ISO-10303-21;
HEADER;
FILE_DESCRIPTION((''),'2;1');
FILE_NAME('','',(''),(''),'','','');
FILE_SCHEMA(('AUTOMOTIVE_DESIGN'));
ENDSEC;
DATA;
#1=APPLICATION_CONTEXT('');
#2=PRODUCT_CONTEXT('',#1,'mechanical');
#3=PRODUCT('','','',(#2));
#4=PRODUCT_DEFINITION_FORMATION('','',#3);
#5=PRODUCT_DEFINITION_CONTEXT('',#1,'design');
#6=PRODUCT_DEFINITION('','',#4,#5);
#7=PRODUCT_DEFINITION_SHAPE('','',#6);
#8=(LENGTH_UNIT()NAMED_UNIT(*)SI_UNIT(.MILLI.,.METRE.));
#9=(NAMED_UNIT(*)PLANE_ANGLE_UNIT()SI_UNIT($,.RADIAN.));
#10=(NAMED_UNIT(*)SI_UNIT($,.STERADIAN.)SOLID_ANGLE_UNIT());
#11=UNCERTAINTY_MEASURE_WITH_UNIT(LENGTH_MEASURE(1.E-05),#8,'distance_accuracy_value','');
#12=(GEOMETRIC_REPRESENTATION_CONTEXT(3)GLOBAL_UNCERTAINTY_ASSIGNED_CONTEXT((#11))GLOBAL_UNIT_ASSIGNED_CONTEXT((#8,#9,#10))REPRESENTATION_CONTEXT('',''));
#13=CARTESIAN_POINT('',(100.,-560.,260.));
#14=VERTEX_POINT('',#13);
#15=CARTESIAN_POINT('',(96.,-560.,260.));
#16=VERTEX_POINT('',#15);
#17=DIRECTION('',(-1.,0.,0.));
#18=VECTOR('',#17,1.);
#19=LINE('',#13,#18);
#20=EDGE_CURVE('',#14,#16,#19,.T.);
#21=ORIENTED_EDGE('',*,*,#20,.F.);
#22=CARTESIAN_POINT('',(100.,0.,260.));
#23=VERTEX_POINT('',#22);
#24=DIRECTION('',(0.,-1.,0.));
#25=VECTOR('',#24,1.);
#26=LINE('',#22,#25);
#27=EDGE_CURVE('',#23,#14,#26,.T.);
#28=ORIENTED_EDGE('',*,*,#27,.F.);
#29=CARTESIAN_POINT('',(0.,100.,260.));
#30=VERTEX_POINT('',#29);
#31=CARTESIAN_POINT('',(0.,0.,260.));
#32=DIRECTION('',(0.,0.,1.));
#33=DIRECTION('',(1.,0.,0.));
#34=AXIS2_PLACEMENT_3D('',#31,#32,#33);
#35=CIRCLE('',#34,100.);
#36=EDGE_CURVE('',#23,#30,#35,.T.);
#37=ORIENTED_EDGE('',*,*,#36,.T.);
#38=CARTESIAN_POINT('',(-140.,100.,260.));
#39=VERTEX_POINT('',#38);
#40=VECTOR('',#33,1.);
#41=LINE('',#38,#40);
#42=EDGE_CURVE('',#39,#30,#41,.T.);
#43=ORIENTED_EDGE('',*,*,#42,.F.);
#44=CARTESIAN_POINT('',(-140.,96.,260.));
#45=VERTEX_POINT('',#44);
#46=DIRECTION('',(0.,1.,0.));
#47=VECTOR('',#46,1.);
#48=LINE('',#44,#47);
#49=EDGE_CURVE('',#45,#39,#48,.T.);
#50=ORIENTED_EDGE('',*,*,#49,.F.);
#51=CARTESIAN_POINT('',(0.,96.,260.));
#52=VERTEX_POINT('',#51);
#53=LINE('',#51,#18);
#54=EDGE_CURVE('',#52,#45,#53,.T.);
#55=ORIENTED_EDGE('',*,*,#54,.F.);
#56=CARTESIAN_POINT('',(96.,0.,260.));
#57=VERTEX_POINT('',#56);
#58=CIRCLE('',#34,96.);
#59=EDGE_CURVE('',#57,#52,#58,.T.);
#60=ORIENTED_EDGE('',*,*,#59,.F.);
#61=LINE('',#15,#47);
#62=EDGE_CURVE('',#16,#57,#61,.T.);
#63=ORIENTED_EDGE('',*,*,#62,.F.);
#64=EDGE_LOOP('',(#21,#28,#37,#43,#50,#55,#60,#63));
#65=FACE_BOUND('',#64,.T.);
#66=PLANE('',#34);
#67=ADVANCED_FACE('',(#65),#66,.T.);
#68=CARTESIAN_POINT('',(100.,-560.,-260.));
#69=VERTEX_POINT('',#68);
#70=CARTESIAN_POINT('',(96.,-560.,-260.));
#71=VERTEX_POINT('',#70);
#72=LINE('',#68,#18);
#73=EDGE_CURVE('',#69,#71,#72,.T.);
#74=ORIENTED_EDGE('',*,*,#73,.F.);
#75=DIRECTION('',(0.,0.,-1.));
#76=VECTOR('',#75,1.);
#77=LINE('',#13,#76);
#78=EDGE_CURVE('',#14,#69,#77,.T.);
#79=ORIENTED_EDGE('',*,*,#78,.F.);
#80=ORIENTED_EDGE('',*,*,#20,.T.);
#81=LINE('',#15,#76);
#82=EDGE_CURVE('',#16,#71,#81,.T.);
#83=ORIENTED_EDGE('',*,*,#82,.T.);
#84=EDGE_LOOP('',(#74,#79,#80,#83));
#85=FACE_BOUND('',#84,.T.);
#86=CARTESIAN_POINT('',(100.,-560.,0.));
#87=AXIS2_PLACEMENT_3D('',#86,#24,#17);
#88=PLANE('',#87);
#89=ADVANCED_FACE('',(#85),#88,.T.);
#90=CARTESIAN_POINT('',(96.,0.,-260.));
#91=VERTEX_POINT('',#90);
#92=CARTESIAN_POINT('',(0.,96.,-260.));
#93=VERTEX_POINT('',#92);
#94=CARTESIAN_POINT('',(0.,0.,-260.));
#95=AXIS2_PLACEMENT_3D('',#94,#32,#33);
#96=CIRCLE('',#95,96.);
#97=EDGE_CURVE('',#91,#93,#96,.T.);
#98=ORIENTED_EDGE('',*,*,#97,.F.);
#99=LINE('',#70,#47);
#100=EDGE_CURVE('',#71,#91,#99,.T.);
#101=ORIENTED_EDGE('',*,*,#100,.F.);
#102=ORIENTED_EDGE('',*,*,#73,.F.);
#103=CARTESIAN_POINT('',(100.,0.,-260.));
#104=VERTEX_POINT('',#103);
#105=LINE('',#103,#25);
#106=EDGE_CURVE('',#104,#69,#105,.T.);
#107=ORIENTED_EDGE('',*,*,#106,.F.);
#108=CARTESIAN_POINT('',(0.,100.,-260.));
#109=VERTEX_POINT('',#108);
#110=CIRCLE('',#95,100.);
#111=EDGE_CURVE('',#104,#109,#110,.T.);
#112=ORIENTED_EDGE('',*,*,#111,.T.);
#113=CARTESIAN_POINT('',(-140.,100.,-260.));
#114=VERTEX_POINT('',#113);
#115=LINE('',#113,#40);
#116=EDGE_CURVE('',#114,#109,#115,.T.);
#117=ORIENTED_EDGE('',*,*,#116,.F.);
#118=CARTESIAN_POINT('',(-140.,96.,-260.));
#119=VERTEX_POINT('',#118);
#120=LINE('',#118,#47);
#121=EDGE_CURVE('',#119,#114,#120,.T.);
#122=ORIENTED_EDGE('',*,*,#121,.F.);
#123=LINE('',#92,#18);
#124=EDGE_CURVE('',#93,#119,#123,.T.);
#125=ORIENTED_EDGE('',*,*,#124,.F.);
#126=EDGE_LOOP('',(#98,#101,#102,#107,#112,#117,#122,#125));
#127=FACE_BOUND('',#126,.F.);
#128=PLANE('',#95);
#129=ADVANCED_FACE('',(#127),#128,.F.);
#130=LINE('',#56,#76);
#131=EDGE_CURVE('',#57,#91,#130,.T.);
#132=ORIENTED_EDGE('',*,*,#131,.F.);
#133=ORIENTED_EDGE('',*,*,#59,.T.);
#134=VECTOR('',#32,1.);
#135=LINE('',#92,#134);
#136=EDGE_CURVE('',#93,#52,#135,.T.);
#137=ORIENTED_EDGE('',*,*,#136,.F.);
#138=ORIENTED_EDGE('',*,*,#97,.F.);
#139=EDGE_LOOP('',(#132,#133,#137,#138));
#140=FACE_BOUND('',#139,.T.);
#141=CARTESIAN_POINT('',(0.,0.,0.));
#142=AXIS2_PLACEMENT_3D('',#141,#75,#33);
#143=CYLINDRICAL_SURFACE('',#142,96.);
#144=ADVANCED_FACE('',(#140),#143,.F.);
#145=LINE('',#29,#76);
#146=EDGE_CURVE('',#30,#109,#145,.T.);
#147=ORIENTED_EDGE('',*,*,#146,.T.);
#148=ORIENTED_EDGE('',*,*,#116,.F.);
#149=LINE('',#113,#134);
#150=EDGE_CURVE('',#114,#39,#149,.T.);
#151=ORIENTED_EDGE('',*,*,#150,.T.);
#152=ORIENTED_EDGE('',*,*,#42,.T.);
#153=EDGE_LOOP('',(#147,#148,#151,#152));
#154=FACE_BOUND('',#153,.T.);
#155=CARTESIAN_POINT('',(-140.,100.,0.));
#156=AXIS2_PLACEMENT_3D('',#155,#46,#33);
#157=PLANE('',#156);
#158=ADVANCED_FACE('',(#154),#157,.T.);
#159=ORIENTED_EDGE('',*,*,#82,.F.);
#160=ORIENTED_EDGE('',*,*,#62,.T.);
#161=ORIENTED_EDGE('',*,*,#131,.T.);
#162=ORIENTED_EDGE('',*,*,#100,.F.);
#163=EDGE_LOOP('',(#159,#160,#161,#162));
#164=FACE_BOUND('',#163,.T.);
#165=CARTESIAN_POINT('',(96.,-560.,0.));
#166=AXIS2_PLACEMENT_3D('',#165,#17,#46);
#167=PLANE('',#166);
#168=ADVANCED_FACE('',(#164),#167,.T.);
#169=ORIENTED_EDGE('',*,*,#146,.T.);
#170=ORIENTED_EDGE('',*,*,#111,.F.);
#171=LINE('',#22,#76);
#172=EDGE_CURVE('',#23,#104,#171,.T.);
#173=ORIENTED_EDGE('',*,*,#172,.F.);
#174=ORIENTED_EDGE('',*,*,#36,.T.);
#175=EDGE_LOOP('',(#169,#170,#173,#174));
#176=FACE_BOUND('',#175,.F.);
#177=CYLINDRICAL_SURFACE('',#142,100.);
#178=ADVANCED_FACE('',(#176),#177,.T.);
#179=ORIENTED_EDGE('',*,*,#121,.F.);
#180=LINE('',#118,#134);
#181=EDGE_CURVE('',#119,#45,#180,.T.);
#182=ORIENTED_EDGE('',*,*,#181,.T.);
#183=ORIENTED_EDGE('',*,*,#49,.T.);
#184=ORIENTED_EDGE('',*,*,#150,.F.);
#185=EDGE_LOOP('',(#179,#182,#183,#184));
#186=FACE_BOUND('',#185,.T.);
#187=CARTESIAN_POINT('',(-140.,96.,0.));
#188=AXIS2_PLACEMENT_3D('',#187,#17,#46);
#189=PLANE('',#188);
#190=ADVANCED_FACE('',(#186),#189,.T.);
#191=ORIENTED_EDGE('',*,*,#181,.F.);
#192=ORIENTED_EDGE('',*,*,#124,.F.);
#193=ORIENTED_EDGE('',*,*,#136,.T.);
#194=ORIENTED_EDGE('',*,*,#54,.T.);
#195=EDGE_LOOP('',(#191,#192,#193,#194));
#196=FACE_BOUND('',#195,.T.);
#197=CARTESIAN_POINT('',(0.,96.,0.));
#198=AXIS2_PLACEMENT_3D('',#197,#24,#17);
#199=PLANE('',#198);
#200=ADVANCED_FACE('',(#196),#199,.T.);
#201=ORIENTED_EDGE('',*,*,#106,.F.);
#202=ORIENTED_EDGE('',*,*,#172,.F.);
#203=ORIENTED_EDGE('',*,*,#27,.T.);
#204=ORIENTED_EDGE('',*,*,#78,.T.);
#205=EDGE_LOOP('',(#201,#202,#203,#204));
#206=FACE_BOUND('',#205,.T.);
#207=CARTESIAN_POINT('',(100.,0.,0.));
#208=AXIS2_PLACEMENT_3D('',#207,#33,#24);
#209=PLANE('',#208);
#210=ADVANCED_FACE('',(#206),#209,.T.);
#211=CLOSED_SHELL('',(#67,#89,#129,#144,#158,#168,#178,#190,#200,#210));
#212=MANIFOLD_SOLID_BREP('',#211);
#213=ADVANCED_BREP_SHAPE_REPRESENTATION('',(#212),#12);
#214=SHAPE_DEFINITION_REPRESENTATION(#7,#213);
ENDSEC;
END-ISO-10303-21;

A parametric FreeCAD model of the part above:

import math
import FreeCAD as App
import Part
import Sketcher
from FreeCAD import Vector
Q = App.Units.Quantity

doc = App.newDocument("Part")
body = doc.addObject("PartDesign::Body", "Body")

# Sketch on XY plane
sketch1 = body.newObject("Sketcher::SketchObject", "Sketch")
sketch1.AttachmentSupport = (doc.getObject("XY_Plane"), [""])
sketch1.MapMode = "FlatFace"
sketch1.addGeometry([
    Part.LineSegment(Vector(0, 100, 0), Vector(-140, 100, 0)),  # 0
    Part.LineSegment(Vector(-140, 100, 0), Vector(-140, 96, 0)),  # 1
    Part.LineSegment(Vector(-140, 96, 0), Vector(0, 96, 0)),  # 2
    Part.ArcOfCircle(Part.Circle(Vector(0, 0, 0), Vector(0, 0, 1), 96), math.radians(0), math.radians(90)),  # 3
    Part.LineSegment(Vector(96, 0, 0), Vector(96, -560, 0)),  # 4
    Part.LineSegment(Vector(96, -560, 0), Vector(100, -560, 0)),  # 5
    Part.LineSegment(Vector(100, -560, 0), Vector(100, 0, 0)),  # 6
    Part.ArcOfCircle(Part.Circle(Vector(0, 0, 0), Vector(0, 0, 1), 100), math.radians(0), math.radians(90)),  # 7
], False)
sketch1.addConstraint([
    Sketcher.Constraint("Coincident", 0, 2, 1, 1),
    Sketcher.Constraint("Coincident", 1, 2, 2, 1),
    Sketcher.Constraint("Tangent", 2, 2, 3, 2),
    Sketcher.Constraint("Tangent", 3, 1, 4, 1),
    Sketcher.Constraint("Coincident", 4, 2, 5, 1),
    Sketcher.Constraint("Coincident", 5, 2, 6, 1),
    Sketcher.Constraint("Tangent", 6, 2, 7, 1),
    Sketcher.Constraint("Tangent", 7, 2, 0, 1),
    Sketcher.Constraint("Horizontal", 0),
    Sketcher.Constraint("Vertical", 1),
    Sketcher.Constraint("Horizontal", 2),
    Sketcher.Constraint("Vertical", 4),
    Sketcher.Constraint("Horizontal", 5),
    Sketcher.Constraint("Vertical", 6),
    Sketcher.Constraint("Coincident", 3, 3, -1, 1),
    Sketcher.Constraint("Coincident", 7, 3, -1, 1),
    Sketcher.Constraint("Radius", 7, Q("100 mm")),
    Sketcher.Constraint("DistanceX", 5, 1, 5, 2, Q("4 mm")),
    Sketcher.Constraint("DistanceX", 1, 2, 6, 2, Q("240 mm")),
    Sketcher.Constraint("DistanceY", 4, 2, 4, 1, Q("560 mm")),
])
pad1 = body.newObject("PartDesign::Pad", "Pad")
pad1.Profile = sketch1
pad1.Length = 520
pad1.Midplane = True

doc.recompute()
